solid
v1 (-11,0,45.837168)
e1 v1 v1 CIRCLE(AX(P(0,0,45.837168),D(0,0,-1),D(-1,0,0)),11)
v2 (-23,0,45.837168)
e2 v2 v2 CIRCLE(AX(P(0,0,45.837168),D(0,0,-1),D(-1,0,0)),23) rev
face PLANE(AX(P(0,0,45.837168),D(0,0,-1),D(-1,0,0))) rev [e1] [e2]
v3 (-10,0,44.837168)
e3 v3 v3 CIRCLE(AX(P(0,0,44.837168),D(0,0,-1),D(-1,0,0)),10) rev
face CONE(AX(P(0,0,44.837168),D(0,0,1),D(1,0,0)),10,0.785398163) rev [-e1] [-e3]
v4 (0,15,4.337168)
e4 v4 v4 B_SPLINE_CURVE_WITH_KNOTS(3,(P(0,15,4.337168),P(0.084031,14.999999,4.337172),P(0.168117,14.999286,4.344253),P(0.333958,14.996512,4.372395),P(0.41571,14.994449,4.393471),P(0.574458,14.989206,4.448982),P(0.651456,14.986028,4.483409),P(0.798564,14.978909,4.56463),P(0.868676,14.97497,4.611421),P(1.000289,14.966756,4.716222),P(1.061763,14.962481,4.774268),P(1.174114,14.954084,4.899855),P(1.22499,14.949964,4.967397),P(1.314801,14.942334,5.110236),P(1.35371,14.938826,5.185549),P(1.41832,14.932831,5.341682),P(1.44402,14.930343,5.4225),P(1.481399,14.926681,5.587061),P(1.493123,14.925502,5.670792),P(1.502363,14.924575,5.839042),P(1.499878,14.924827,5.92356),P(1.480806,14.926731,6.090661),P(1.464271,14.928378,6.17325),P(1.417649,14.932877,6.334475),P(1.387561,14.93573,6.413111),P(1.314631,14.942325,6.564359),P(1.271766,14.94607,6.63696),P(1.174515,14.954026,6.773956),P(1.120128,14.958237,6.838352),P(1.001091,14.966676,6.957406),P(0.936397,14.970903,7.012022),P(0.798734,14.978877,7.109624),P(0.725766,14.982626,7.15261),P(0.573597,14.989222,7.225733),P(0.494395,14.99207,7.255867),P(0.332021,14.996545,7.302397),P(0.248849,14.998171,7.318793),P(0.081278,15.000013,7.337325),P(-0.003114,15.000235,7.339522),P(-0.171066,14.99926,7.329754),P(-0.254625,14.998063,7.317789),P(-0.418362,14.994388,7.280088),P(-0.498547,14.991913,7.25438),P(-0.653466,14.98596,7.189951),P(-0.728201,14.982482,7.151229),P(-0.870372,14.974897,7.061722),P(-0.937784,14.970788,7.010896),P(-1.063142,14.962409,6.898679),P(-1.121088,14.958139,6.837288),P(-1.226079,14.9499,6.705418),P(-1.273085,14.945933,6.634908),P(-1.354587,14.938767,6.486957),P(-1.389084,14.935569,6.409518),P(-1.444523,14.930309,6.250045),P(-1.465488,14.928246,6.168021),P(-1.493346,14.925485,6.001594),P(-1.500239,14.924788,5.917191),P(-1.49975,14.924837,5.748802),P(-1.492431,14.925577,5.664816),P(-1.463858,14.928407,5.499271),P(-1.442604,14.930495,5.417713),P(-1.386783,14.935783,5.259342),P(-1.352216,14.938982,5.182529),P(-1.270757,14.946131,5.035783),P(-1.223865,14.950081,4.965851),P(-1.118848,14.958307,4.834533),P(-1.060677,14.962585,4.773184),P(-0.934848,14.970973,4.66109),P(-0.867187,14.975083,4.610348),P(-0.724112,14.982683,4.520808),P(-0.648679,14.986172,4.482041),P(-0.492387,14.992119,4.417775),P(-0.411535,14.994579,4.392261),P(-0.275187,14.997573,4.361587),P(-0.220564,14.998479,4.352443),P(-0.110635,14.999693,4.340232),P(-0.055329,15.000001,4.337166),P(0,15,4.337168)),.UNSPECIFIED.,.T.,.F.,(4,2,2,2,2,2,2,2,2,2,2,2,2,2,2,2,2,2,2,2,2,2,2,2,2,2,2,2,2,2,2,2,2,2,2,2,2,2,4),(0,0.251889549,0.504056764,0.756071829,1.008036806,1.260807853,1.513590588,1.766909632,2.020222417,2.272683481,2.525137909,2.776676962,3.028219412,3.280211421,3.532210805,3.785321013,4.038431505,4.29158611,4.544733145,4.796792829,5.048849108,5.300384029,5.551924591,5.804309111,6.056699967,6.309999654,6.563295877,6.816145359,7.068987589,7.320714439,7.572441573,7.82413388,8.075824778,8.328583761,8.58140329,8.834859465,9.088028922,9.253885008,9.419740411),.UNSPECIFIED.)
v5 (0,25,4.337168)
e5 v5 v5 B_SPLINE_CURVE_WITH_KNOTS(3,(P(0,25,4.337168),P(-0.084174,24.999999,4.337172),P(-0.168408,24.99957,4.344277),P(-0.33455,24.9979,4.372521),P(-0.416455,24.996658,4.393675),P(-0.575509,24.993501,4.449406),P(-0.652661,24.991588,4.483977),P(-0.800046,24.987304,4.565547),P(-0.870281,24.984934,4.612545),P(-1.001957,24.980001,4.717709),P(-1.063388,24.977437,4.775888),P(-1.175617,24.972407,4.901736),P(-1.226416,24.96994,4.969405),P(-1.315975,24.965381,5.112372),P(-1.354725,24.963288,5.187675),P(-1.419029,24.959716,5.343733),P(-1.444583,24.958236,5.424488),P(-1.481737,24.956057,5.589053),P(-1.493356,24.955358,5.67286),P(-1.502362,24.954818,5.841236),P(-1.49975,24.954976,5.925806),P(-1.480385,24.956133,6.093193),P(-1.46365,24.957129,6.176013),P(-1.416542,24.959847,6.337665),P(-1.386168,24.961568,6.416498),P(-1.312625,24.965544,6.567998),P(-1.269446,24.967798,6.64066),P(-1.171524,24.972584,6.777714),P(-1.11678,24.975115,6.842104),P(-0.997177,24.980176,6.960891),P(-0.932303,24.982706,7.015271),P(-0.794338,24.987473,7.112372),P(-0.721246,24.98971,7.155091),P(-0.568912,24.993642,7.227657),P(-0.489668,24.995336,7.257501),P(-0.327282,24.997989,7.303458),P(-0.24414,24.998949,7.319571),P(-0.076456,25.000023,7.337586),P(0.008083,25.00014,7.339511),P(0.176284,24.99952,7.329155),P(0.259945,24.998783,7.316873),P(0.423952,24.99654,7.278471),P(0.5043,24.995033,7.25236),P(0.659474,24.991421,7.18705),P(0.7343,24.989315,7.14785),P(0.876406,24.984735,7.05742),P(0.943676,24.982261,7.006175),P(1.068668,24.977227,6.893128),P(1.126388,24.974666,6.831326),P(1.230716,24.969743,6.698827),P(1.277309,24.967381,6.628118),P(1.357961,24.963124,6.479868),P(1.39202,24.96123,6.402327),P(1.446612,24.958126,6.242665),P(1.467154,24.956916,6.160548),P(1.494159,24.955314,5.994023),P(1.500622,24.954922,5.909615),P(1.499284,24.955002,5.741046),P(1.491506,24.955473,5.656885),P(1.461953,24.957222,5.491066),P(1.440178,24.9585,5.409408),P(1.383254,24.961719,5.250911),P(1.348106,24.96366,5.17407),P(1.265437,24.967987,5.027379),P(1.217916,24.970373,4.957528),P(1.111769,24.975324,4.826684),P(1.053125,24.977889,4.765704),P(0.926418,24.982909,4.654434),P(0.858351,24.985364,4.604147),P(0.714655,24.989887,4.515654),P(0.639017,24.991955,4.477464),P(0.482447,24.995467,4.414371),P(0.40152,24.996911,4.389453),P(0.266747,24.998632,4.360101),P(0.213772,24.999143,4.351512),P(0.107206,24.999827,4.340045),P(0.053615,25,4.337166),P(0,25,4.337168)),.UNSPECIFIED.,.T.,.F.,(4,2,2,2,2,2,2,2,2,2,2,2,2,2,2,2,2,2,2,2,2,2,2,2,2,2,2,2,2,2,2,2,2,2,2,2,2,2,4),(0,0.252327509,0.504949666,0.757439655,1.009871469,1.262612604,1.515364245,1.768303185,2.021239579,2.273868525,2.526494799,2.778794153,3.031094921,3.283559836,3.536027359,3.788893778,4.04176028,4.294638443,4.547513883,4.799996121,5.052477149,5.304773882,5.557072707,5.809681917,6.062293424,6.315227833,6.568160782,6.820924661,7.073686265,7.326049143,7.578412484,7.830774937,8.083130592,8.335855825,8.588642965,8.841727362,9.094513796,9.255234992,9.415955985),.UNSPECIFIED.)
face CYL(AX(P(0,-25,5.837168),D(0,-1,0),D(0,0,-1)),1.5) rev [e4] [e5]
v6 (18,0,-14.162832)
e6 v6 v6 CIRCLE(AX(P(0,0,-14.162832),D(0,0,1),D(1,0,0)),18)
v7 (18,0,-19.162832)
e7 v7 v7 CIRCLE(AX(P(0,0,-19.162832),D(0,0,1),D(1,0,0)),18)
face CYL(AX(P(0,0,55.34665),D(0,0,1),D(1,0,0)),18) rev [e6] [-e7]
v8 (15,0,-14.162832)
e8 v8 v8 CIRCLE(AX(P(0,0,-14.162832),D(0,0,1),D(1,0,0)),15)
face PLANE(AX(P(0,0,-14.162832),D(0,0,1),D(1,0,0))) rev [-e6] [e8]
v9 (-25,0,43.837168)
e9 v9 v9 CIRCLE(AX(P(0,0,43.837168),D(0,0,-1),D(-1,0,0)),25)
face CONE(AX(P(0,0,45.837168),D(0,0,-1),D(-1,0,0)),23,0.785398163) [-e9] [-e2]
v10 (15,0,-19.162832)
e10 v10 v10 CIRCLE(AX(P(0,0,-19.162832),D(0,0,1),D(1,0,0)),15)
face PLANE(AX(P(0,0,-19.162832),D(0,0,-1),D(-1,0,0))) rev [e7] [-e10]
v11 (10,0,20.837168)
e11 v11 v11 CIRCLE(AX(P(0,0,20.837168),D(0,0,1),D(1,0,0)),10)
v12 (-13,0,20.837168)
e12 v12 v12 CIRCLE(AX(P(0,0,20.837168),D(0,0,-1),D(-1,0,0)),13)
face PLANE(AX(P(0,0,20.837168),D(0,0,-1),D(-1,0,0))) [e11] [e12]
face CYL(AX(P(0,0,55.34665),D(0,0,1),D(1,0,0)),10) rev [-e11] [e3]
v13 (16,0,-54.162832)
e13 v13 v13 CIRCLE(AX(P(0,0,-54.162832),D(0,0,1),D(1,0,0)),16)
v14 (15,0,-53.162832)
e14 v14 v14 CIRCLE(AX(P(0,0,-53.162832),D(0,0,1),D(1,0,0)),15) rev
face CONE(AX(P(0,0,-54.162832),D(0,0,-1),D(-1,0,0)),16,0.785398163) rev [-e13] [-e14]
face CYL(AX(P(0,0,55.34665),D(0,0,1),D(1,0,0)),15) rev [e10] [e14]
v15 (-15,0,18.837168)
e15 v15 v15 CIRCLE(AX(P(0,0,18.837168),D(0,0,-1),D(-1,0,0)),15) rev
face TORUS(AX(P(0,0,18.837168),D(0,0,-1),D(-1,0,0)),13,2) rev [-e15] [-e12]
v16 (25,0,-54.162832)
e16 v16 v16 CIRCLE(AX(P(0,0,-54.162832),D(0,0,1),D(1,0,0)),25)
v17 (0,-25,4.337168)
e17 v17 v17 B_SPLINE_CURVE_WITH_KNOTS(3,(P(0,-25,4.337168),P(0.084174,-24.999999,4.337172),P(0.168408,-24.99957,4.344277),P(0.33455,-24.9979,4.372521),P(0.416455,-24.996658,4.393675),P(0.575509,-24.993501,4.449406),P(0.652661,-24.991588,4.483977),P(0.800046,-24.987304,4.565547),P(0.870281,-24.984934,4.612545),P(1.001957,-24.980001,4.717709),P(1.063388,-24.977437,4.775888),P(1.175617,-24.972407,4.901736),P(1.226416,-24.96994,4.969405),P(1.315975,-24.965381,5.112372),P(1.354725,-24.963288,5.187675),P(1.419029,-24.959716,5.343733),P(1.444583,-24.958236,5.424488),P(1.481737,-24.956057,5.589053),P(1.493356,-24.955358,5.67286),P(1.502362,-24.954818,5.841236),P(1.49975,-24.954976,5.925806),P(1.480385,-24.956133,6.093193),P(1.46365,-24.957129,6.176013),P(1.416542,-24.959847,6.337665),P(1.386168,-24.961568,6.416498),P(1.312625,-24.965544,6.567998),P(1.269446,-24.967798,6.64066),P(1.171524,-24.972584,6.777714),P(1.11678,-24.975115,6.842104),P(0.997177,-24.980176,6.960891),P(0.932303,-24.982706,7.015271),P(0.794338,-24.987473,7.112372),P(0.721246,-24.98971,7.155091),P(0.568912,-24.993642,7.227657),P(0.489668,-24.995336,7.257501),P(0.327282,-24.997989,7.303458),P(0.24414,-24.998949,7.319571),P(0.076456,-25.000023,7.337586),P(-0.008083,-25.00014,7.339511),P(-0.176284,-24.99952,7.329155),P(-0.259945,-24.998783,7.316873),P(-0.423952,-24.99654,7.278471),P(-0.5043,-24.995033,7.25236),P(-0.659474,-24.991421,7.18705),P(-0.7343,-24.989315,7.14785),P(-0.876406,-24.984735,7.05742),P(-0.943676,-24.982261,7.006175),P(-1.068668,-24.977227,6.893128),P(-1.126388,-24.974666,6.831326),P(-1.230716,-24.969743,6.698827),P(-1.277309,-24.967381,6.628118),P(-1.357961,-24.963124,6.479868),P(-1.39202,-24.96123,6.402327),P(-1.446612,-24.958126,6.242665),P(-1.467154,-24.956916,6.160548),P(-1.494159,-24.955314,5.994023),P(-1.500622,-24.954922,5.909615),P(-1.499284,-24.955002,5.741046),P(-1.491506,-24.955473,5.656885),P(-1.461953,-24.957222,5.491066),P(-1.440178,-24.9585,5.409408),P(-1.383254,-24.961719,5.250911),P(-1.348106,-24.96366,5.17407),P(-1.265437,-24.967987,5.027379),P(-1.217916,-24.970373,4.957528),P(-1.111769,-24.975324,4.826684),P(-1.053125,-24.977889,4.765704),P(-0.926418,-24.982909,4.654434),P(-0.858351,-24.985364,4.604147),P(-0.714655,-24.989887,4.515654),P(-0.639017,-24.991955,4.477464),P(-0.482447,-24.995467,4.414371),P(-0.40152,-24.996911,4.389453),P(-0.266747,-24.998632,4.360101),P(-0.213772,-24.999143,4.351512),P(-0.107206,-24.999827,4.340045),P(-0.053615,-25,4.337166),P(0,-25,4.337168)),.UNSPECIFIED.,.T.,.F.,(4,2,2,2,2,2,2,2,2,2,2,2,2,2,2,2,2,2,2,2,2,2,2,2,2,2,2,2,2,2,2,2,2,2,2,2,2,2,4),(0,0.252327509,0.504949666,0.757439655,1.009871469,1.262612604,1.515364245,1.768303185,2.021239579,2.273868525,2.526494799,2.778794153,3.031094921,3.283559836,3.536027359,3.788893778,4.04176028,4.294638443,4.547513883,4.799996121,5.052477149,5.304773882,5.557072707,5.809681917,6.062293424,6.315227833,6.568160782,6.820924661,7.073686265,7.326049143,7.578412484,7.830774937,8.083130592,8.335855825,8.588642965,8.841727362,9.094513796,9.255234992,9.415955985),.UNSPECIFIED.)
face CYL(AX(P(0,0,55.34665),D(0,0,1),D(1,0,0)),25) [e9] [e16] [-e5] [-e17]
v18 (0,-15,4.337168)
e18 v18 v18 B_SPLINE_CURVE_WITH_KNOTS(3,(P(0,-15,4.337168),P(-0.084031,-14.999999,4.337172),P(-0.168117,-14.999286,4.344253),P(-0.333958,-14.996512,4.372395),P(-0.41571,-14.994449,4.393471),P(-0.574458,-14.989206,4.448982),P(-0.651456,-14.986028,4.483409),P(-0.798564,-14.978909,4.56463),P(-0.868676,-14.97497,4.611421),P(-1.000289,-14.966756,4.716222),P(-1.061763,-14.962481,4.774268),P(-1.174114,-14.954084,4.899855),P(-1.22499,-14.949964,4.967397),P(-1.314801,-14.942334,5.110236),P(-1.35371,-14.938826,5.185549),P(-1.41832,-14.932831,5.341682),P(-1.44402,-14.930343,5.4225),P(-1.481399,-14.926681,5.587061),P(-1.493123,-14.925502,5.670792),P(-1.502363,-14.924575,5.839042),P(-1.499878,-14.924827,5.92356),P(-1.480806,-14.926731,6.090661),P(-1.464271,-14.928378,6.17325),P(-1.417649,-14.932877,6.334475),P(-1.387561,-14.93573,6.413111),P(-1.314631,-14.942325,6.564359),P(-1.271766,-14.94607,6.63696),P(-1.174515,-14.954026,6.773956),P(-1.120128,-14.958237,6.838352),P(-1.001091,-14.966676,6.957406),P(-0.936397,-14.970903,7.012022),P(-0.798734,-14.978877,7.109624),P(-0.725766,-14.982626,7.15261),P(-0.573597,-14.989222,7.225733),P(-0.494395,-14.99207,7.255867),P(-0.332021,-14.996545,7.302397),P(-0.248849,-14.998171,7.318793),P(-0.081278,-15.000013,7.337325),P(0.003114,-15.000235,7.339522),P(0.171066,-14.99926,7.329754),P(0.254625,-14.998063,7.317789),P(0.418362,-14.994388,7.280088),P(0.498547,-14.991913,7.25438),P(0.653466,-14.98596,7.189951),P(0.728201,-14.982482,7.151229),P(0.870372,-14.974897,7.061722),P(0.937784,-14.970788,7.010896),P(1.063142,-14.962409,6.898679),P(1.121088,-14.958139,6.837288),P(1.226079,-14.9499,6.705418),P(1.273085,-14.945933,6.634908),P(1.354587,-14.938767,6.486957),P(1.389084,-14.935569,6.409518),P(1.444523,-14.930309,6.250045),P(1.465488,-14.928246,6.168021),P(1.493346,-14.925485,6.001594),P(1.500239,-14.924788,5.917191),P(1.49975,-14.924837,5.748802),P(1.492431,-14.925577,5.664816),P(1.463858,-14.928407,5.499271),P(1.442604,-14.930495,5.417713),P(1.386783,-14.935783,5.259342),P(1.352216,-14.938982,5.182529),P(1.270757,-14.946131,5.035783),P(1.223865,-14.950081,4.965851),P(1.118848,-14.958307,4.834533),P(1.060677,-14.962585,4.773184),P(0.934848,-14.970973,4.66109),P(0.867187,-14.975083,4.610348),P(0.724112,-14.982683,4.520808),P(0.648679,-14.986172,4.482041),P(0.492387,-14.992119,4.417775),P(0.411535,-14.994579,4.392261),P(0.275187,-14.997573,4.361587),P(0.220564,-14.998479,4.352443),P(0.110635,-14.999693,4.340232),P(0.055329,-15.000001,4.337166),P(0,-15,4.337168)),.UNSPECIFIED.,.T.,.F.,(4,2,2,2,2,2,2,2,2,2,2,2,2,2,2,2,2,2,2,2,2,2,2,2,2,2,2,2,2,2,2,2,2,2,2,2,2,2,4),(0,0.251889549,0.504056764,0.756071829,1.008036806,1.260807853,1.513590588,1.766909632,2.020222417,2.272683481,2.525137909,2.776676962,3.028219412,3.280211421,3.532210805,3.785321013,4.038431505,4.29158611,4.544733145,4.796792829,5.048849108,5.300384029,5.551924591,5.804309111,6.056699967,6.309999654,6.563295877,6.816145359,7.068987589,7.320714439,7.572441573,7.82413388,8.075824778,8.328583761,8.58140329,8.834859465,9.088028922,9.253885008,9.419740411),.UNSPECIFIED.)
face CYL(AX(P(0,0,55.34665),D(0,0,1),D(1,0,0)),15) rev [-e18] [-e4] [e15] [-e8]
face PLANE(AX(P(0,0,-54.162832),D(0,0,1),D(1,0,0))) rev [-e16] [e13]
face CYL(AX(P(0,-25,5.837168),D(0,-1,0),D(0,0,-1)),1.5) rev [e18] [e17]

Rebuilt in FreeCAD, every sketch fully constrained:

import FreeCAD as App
import Part
import Sketcher

V = App.Vector


def edges_at(feature, points):
    """Names of the edges that pass closest to the given points."""
    edges = feature.Shape.Edges
    near = lambda p: min(range(len(edges)), key=lambda i: edges[i].distToShape(Part.Vertex(*p))[0])
    return sorted({f"Edge{near(p) + 1}" for p in points})

doc = App.newDocument("Part")
body = doc.addObject("PartDesign::Body", "Body")

# Sketch on YZ plane
sketch1 = body.newObject("Sketcher::SketchObject", "Sketch")
sketch1.AttachmentSupport = (doc.getObject("YZ_Plane"), [""])
sketch1.MapMode = "FlatFace"
sketch1.addGeometry(Part.LineSegment(V(10, 20.837168, 0), V(15, 20.837168, 0)), False)
sketch1.addGeometry(Part.LineSegment(V(15, 20.837168, 0), V(15, -14.162832, 0)), False)
sketch1.addGeometry(Part.LineSegment(V(15, -14.162832, 0), V(18, -14.162832, 0)), False)
sketch1.addGeometry(Part.LineSegment(V(18, -14.162832, 0), V(18, -19.162832, 0)), False)
sketch1.addGeometry(Part.LineSegment(V(18, -19.162832, 0), V(15, -19.162832, 0)), False)
sketch1.addGeometry(Part.LineSegment(V(15, -19.162832, 0), V(15, -54.162832, 0)), False)
sketch1.addGeometry(Part.LineSegment(V(15, -54.162832, 0), V(25, -54.162832, 0)), False)
sketch1.addGeometry(Part.LineSegment(V(25, -54.162832, 0), V(25, 45.837168, 0)), False)
sketch1.addGeometry(Part.LineSegment(V(25, 45.837168, 0), V(10, 45.837168, 0)), False)
sketch1.addGeometry(Part.LineSegment(V(10, 45.837168, 0), V(10, 20.837168, 0)), False)
sketch1.addConstraint(Sketcher.Constraint("Coincident", 0, 2, 1, 1))
sketch1.addConstraint(Sketcher.Constraint("Coincident", 1, 2, 2, 1))
sketch1.addConstraint(Sketcher.Constraint("Coincident", 2, 2, 3, 1))
sketch1.addConstraint(Sketcher.Constraint("Coincident", 3, 2, 4, 1))
sketch1.addConstraint(Sketcher.Constraint("Coincident", 4, 2, 5, 1))
sketch1.addConstraint(Sketcher.Constraint("Coincident", 5, 2, 6, 1))
sketch1.addConstraint(Sketcher.Constraint("Coincident", 6, 2, 7, 1))
sketch1.addConstraint(Sketcher.Constraint("Coincident", 7, 2, 8, 1))
sketch1.addConstraint(Sketcher.Constraint("Coincident", 8, 2, 9, 1))
sketch1.addConstraint(Sketcher.Constraint("Coincident", 9, 2, 0, 1))
sketch1.addConstraint(Sketcher.Constraint("Horizontal", 0))
sketch1.addConstraint(Sketcher.Constraint("Vertical", 1))
sketch1.addConstraint(Sketcher.Constraint("Horizontal", 2))
sketch1.addConstraint(Sketcher.Constraint("Vertical", 3))
sketch1.addConstraint(Sketcher.Constraint("Horizontal", 4))
sketch1.addConstraint(Sketcher.Constraint("Vertical", 5))
sketch1.addConstraint(Sketcher.Constraint("Horizontal", 6))
sketch1.addConstraint(Sketcher.Constraint("Vertical", 7))
sketch1.addConstraint(Sketcher.Constraint("Horizontal", 8))
sketch1.addConstraint(Sketcher.Constraint("Vertical", 9))
sketch1.addConstraint(Sketcher.Constraint("Vertical", 1, 2, 4, 2))
sketch1.addConstraint(Sketcher.Constraint("Equal", 0, 3))
sketch1.addConstraint(Sketcher.Constraint("Equal", 1, 5))
sketch1.addConstraint(Sketcher.Constraint("DistanceX", 0, 1, 0, 2, 5.0))
sketch1.addConstraint(Sketcher.Constraint("DistanceX", 2, 1, 2, 2, 3.0))
sketch1.addConstraint(Sketcher.Constraint("DistanceX", 6, 1, 6, 2, 10.0))
sketch1.addConstraint(Sketcher.Constraint("DistanceY", 1, 2, 1, 1, 35.0))
sketch1.addConstraint(Sketcher.Constraint("DistanceY", 7, 1, 7, 2, 100.0))
sketch1.addConstraint(Sketcher.Constraint("DistanceX", -1, 1, 0, 2, 15.0))
sketch1.addConstraint(Sketcher.Constraint("DistanceY", -1, 1, 0, 2, 20.837168))
revolution = body.newObject("PartDesign::Revolution", "Revolution")
revolution.Profile = sketch1
revolution.ReferenceAxis = (sketch1, ["V_Axis"])
revolution.Angle = 360
doc.recompute()

chamfer = body.newObject("PartDesign::Chamfer", "Chamfer")
chamfer.Base = (revolution, edges_at(revolution, [(-15, 0, -54.163), (-10, 0, 45.837)]))
chamfer.Size = 1
doc.recompute()

chamfer2 = body.newObject("PartDesign::Chamfer", "Chamfer001")
chamfer2.Base = (chamfer, edges_at(chamfer, [(-25, 0, 45.837)]))
chamfer2.Size = 2
doc.recompute()

fillet = body.newObject("PartDesign::Fillet", "Fillet")
fillet.Base = (chamfer2, edges_at(chamfer2, [(-15, 0, 20.837)]))
fillet.Radius = 2

# Sketch on XZ plane
sketch2 = body.newObject("Sketcher::SketchObject", "Sketch001")
sketch2.AttachmentSupport = (doc.getObject("XZ_Plane"), [""])
sketch2.MapMode = "FlatFace"
sketch2.AttachmentOffset = App.Placement(V(0, 0, 25), App.Rotation())
sketch2.addGeometry(Part.Circle(V(0, 5.837168, 0), V(0, 0, 1), 1.5), False)
sketch2.addConstraint(Sketcher.Constraint("PointOnObject", 0, 3, -2))
sketch2.addConstraint(Sketcher.Constraint("Diameter", 0, 3.0))
sketch2.addConstraint(Sketcher.Constraint("DistanceY", -1, 1, 0, 3, 5.837168))
doc.recompute()
hole = body.newObject("PartDesign::Hole", "Hole")
hole.Profile = sketch2
hole.ThreadType = "None"
hole.Diameter = 3
hole.DepthType = "ThroughAll"

doc.recompute()
